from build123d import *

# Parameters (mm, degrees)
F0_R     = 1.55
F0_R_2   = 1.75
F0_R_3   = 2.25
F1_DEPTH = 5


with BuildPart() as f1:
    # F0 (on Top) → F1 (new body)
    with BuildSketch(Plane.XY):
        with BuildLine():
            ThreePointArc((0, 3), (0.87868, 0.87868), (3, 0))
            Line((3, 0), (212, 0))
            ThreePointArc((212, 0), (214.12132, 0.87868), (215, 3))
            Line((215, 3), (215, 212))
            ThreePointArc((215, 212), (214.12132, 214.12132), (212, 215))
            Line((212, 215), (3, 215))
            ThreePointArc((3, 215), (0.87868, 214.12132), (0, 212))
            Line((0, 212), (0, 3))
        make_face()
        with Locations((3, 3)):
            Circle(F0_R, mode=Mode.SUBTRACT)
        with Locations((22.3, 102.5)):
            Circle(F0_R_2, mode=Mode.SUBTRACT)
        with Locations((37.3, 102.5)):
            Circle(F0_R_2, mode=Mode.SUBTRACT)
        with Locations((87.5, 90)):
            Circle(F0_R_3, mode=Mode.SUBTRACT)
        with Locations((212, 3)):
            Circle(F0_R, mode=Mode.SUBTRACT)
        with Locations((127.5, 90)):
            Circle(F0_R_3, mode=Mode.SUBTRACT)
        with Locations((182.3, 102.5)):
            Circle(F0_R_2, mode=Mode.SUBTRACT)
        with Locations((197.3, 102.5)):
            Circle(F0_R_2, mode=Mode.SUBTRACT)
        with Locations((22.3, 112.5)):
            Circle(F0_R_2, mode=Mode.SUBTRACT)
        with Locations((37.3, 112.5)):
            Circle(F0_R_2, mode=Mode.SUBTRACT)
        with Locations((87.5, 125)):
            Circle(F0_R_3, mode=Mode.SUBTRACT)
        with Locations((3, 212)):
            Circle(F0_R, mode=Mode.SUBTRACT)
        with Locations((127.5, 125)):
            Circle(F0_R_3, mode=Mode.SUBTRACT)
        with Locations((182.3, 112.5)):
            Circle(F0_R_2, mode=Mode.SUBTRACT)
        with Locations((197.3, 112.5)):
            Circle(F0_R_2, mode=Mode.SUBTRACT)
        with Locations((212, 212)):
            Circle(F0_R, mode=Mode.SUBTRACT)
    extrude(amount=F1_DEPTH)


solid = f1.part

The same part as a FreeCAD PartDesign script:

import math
import FreeCAD as App
import Part
import Sketcher
from FreeCAD import Vector
Q = App.Units.Quantity

doc = App.newDocument("Part")
body = doc.addObject("PartDesign::Body", "Body")

sketch1 = doc.addObject("Sketcher::SketchObject", "Sketch")
body.addObject(sketch1)
sketch1.AttachmentSupport = (doc.XY_Plane, [""])
sketch1.MapMode = "FlatFace"
sketch1.addGeometry(Part.ArcOfCircle(Part.Circle(Vector(3.000001, 3.000001, 0), Vector(0, 0, 1), 3.000001), math.radians(-179.999978), math.radians(-90.000022)), False)
sketch1.addGeometry(Part.LineSegment(Vector(3, 0, 0), Vector(212, 0, 0)), False)
sketch1.addGeometry(Part.ArcOfCircle(Part.Circle(Vector(211.999999, 3.000001, 0), Vector(0, 0, 1), 3.000001), math.radians(-89.999978), math.radians(-0.000022)), False)
sketch1.addGeometry(Part.LineSegment(Vector(215, 3, 0), Vector(215, 212, 0)), False)
sketch1.addGeometry(Part.ArcOfCircle(Part.Circle(Vector(211.999999, 211.999999, 0), Vector(0, 0, 1), 3.000001), math.radians(0.000022), math.radians(89.999978)), False)
sketch1.addGeometry(Part.LineSegment(Vector(212, 215, 0), Vector(3, 215, 0)), False)
sketch1.addGeometry(Part.ArcOfCircle(Part.Circle(Vector(3.000001, 211.999999, 0), Vector(0, 0, 1), 3.000001), math.radians(90.000022), math.radians(179.999978)), False)
sketch1.addGeometry(Part.LineSegment(Vector(0, 212, 0), Vector(0, 3, 0)), False)
sketch1.addGeometry(Part.Circle(Vector(3, 3, 0), Vector(0, 0, 1), 1.55), False)
sketch1.addGeometry(Part.Circle(Vector(22.3, 102.5, 0), Vector(0, 0, 1), 1.75), False)
sketch1.addGeometry(Part.Circle(Vector(37.3, 102.5, 0), Vector(0, 0, 1), 1.75), False)
sketch1.addGeometry(Part.Circle(Vector(87.5, 90, 0), Vector(0, 0, 1), 2.25), False)
sketch1.addGeometry(Part.Circle(Vector(212, 3, 0), Vector(0, 0, 1), 1.55), False)
sketch1.addGeometry(Part.Circle(Vector(127.5, 90, 0), Vector(0, 0, 1), 2.25), False)
sketch1.addGeometry(Part.Circle(Vector(182.3, 102.5, 0), Vector(0, 0, 1), 1.75), False)
sketch1.addGeometry(Part.Circle(Vector(197.3, 102.5, 0), Vector(0, 0, 1), 1.75), False)
sketch1.addGeometry(Part.Circle(Vector(22.3, 112.5, 0), Vector(0, 0, 1), 1.75), False)
sketch1.addGeometry(Part.Circle(Vector(37.3, 112.5, 0), Vector(0, 0, 1), 1.75), False)
sketch1.addGeometry(Part.Circle(Vector(87.5, 125, 0), Vector(0, 0, 1), 2.25), False)
sketch1.addGeometry(Part.Circle(Vector(3, 212, 0), Vector(0, 0, 1), 1.55), False)
sketch1.addGeometry(Part.Circle(Vector(127.5, 125, 0), Vector(0, 0, 1), 2.25), False)
sketch1.addGeometry(Part.Circle(Vector(182.3, 112.5, 0), Vector(0, 0, 1), 1.75), False)
sketch1.addGeometry(Part.Circle(Vector(197.3, 112.5, 0), Vector(0, 0, 1), 1.75), False)
sketch1.addGeometry(Part.Circle(Vector(212, 212, 0), Vector(0, 0, 1), 1.55), False)
sketch1.addConstraint(Sketcher.Constraint("Tangent", 0, 2, 1, 1))
sketch1.addConstraint(Sketcher.Constraint("Tangent", 1, 2, 2, 1))
sketch1.addConstraint(Sketcher.Constraint("Tangent", 2, 2, 3, 1))
sketch1.addConstraint(Sketcher.Constraint("Tangent", 3, 2, 4, 1))
sketch1.addConstraint(Sketcher.Constraint("Tangent", 4, 2, 5, 1))
sketch1.addConstraint(Sketcher.Constraint("Tangent", 5, 2, 6, 1))
sketch1.addConstraint(Sketcher.Constraint("Tangent", 6, 2, 7, 1))
sketch1.addConstraint(Sketcher.Constraint("Tangent", 7, 2, 0, 1))
sketch1.addConstraint(Sketcher.Constraint("Horizontal", 1))
sketch1.addConstraint(Sketcher.Constraint("Vertical", 3))
sketch1.addConstraint(Sketcher.Constraint("Horizontal", 5))
sketch1.addConstraint(Sketcher.Constraint("Vertical", 7))
sketch1.addConstraint(Sketcher.Constraint("Coincident", 8, 3, 0, 3))
sketch1.addConstraint(Sketcher.Constraint("Coincident", 12, 3, 2, 3))
sketch1.addConstraint(Sketcher.Constraint("Coincident", 19, 3, 6, 3))
sketch1.addConstraint(Sketcher.Constraint("Coincident", 23, 3, 4, 3))
sketch1.addConstraint(Sketcher.Constraint("Equal", 0, 2))
sketch1.addConstraint(Sketcher.Constraint("Equal", 2, 4))
sketch1.addConstraint(Sketcher.Constraint("Equal", 4, 6))
sketch1.addConstraint(Sketcher.Constraint("Equal", 9, 10))
sketch1.addConstraint(Sketcher.Constraint("Equal", 8, 12))
sketch1.addConstraint(Sketcher.Constraint("Equal", 11, 13))
sketch1.addConstraint(Sketcher.Constraint("Equal", 10, 14))
sketch1.addConstraint(Sketcher.Constraint("Equal", 14, 15))
sketch1.addConstraint(Sketcher.Constraint("Equal", 15, 16))
sketch1.addConstraint(Sketcher.Constraint("Equal", 16, 17))
sketch1.addConstraint(Sketcher.Constraint("Equal", 13, 18))
sketch1.addConstraint(Sketcher.Constraint("Equal", 12, 19))
sketch1.addConstraint(Sketcher.Constraint("Equal", 18, 20))
sketch1.addConstraint(Sketcher.Constraint("Equal", 17, 21))
sketch1.addConstraint(Sketcher.Constraint("Equal", 21, 22))
sketch1.addConstraint(Sketcher.Constraint("Equal", 19, 23))
sketch1.addConstraint(Sketcher.Constraint("PointOnObject", 0, 2, -1))
sketch1.addConstraint(Sketcher.Constraint("PointOnObject", 6, 2, -2))
sketch1.addConstraint(Sketcher.Constraint("Horizontal", 9, 3, 10, 3))
sketch1.addConstraint(Sketcher.Constraint("Horizontal", 11, 3, 13, 3))
sketch1.addConstraint(Sketcher.Constraint("Horizontal", 10, 3, 14, 3))
sketch1.addConstraint(Sketcher.Constraint("Horizontal", 14, 3, 15, 3))
sketch1.addConstraint(Sketcher.Constraint("Horizontal", 16, 3, 17, 3))
sketch1.addConstraint(Sketcher.Constraint("Horizontal", 18, 3, 20, 3))
sketch1.addConstraint(Sketcher.Constraint("Horizontal", 17, 3, 21, 3))
sketch1.addConstraint(Sketcher.Constraint("Horizontal", 21, 3, 22, 3))
sketch1.addConstraint(Sketcher.Constraint("Vertical", 9, 3, 16, 3))
sketch1.addConstraint(Sketcher.Constraint("Vertical", 10, 3, 17, 3))
sketch1.addConstraint(Sketcher.Constraint("Vertical", 11, 3, 18, 3))
sketch1.addConstraint(Sketcher.Constraint("Vertical", 13, 3, 20, 3))
sketch1.addConstraint(Sketcher.Constraint("Vertical", 14, 3, 21, 3))
sketch1.addConstraint(Sketcher.Constraint("Vertical", 15, 3, 22, 3))
sketch1.addConstraint(Sketcher.Constraint("Equal", 5, 3))
sketch1.addConstraint(Sketcher.Constraint("Radius", 0, Q("3.000001 mm")))
sketch1.addConstraint(Sketcher.Constraint("Diameter", 8, Q("3.1 mm")))
sketch1.addConstraint(Sketcher.Constraint("Diameter", 9, Q("3.5 mm")))
sketch1.addConstraint(Sketcher.Constraint("Diameter", 11, Q("4.5 mm")))
sketch1.addConstraint(Sketcher.Constraint("DistanceX", 1, 1, 1, 2, Q("209 mm")))
sketch1.addConstraint(Sketcher.Constraint("DistanceY", -1, 1, 11, 3, Q("90 mm")))
sketch1.addConstraint(Sketcher.Constraint("DistanceY", -1, 1, 18, 3, Q("125 mm")))
sketch1.addConstraint(Sketcher.Constraint("DistanceX", 9, 3, 10, 3, Q("15 mm")))
sketch1.addConstraint(Sketcher.Constraint("DistanceX", 11, 3, 13, 3, Q("40 mm")))
sketch1.addConstraint(Sketcher.Constraint("DistanceX", 14, 3, 15, 3, Q("15 mm")))
sketch1.addConstraint(Sketcher.Constraint("DistanceY", 9, 3, 16, 3, Q("10 mm")))
sketch1.addConstraint(Sketcher.Constraint("DistanceX", -1, 1, 9, 3, Q("22.3 mm")))
sketch1.addConstraint(Sketcher.Constraint("DistanceY", -1, 1, 9, 3, Q("102.5 mm")))
sketch1.addConstraint(Sketcher.Constraint("DistanceX", -1, 1, 11, 3, Q("87.5 mm")))
sketch1.addConstraint(Sketcher.Constraint("DistanceX", -1, 1, 14, 3, Q("182.3 mm")))
pad1 = doc.addObject("PartDesign::Pad", "Pad")
body.addObject(pad1)
pad1.Profile = sketch1
pad1.Length = 5

doc.recompute()
